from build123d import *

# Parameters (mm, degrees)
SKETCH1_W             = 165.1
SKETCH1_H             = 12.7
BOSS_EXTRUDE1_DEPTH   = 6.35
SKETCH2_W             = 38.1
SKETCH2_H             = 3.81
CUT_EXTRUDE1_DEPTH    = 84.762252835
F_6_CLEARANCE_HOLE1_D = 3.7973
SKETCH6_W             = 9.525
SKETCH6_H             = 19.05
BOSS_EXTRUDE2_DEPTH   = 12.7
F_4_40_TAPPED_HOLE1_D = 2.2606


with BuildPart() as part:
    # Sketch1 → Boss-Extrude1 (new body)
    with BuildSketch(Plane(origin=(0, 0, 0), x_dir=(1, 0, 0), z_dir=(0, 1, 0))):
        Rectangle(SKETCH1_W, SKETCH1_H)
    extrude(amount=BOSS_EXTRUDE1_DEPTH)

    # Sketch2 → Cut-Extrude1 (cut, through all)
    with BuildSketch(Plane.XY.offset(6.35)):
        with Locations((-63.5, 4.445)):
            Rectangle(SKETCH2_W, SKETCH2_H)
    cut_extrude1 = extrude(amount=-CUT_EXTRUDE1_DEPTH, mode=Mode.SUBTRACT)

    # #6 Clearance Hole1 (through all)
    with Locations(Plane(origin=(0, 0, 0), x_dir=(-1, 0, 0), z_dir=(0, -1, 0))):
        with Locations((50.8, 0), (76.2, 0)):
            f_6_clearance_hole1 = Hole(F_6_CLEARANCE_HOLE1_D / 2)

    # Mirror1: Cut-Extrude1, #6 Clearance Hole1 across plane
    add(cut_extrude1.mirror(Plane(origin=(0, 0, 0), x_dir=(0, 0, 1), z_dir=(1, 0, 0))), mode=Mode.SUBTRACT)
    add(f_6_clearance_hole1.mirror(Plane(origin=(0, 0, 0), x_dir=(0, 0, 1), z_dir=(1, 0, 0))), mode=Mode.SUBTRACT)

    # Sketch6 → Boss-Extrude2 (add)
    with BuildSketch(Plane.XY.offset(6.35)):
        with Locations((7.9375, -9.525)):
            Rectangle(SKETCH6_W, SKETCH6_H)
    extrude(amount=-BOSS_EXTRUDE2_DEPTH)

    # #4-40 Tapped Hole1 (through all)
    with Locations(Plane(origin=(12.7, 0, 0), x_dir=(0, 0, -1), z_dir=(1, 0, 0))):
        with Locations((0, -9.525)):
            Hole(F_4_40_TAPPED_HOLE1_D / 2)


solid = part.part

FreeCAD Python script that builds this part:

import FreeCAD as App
import Part
import Sketcher
from FreeCAD import Vector
Q = App.Units.Quantity

doc = App.newDocument("Part")
body = doc.addObject("PartDesign::Body", "Body")

# Sketch on XZ plane
sketch1 = body.newObject("Sketcher::SketchObject", "Sketch")
sketch1.AttachmentSupport = (doc.getObject("XZ_Plane"), [""])
sketch1.MapMode = "FlatFace"
sketch1.addGeometry(Part.LineSegment(Vector(-82.55, -6.35, 0), Vector(-82.55, 6.35, 0)), False)
sketch1.addGeometry(Part.LineSegment(Vector(-82.55, 6.35, 0), Vector(82.55, 6.35, 0)), False)
sketch1.addGeometry(Part.LineSegment(Vector(82.55, 6.35, 0), Vector(82.55, -6.35, 0)), False)
sketch1.addGeometry(Part.LineSegment(Vector(82.55, -6.35, 0), Vector(-82.55, -6.35, 0)), False)
sketch1.addConstraint(Sketcher.Constraint("Coincident", 0, 2, 1, 1))
sketch1.addConstraint(Sketcher.Constraint("Coincident", 1, 2, 2, 1))
sketch1.addConstraint(Sketcher.Constraint("Coincident", 2, 2, 3, 1))
sketch1.addConstraint(Sketcher.Constraint("Coincident", 3, 2, 0, 1))
sketch1.addConstraint(Sketcher.Constraint("Vertical", 0))
sketch1.addConstraint(Sketcher.Constraint("Horizontal", 1))
sketch1.addConstraint(Sketcher.Constraint("Vertical", 2))
sketch1.addConstraint(Sketcher.Constraint("Horizontal", 3))
sketch1.addConstraint(Sketcher.Constraint("Symmetric", 0, 2, 2, 2, -1, 1))
sketch1.addConstraint(Sketcher.Constraint("DistanceX", 1, 1, 1, 2, Q("6.5 in")))
sketch1.addConstraint(Sketcher.Constraint("DistanceY", 0, 1, 0, 2, Q("0.5 in")))
pad1 = body.newObject("PartDesign::Pad", "Pad")
pad1.Profile = sketch1
pad1.Length = Q("0.25 in")
pad1.Reversed = True

# Sketch on XY plane
sketch2 = body.newObject("Sketcher::SketchObject", "Sketch001")
sketch2.AttachmentSupport = (doc.getObject("XY_Plane"), [""])
sketch2.MapMode = "FlatFace"
sketch2.AttachmentOffset = App.Placement(Vector(0, 0, 0.25 * 25.4), App.Rotation())
sketch2.addGeometry(Part.LineSegment(Vector(-82.55, 6.35, 0), Vector(-82.55, 2.54, 0)), False)
sketch2.addGeometry(Part.LineSegment(Vector(-82.55, 2.54, 0), Vector(-44.45, 2.54, 0)), False)
sketch2.addGeometry(Part.LineSegment(Vector(-44.45, 2.54, 0), Vector(-44.45, 6.35, 0)), False)
sketch2.addGeometry(Part.LineSegment(Vector(-44.45, 6.35, 0), Vector(-82.55, 6.35, 0)), False)
sketch2.addConstraint(Sketcher.Constraint("Coincident", 0, 2, 1, 1))
sketch2.addConstraint(Sketcher.Constraint("Coincident", 1, 2, 2, 1))
sketch2.addConstraint(Sketcher.Constraint("Coincident", 2, 2, 3, 1))
sketch2.addConstraint(Sketcher.Constraint("Coincident", 3, 2, 0, 1))
sketch2.addConstraint(Sketcher.Constraint("Vertical", 0))
sketch2.addConstraint(Sketcher.Constraint("Horizontal", 1))
sketch2.addConstraint(Sketcher.Constraint("Vertical", 2))
sketch2.addConstraint(Sketcher.Constraint("Horizontal", 3))
sketch2.addConstraint(Sketcher.Constraint("DistanceX", 1, 1, 1, 2, Q("1.5 in")))
sketch2.addConstraint(Sketcher.Constraint("DistanceY", 0, 2, 0, 1, Q("0.15 in")))
sketch2.addConstraint(Sketcher.Constraint("DistanceY", -1, 1, 0, 2, Q("0.1 in")))
sketch2.addConstraint(Sketcher.Constraint("DistanceX", 0, 2, -1, 1, Q("3.25 in")))
pocket1 = body.newObject("PartDesign::Pocket", "Pocket")
pocket1.Profile = sketch2
pocket1.Type = "ThroughAll"

# Sketch on XZ plane
sketch3 = body.newObject("Sketcher::SketchObject", "Sketch002")
sketch3.AttachmentSupport = (doc.getObject("XZ_Plane"), [""])
sketch3.MapMode = "FlatFace"
sketch3.addGeometry(Part.Circle(Vector(-50.8, 0, 0), Vector(0, 0, 1), 1.89865), False)
sketch3.addGeometry(Part.Circle(Vector(-76.2, 0, 0), Vector(0, 0, 1), 1.89865), False)
sketch3.addConstraint(Sketcher.Constraint("Equal", 0, 1))
sketch3.addConstraint(Sketcher.Constraint("PointOnObject", 0, 3, -1))
sketch3.addConstraint(Sketcher.Constraint("PointOnObject", 1, 3, -1))
sketch3.addConstraint(Sketcher.Constraint("DistanceX", 0, 3, -1, 1, Q("2 in")))
sketch3.addConstraint(Sketcher.Constraint("DistanceX", 1, 3, -1, 1, Q("3 in")))
sketch3.addConstraint(Sketcher.Constraint("Diameter", 0, Q("0.1495 in")))
doc.recompute()
hole = body.newObject("PartDesign::Hole", "Hole")
hole.Profile = sketch3
hole.ThreadType = "None"
hole.Diameter = Q("0.1495 in")
hole.DepthType = "ThroughAll"
doc.recompute()

mirrored = body.newObject("PartDesign::Mirrored", "Mirrored")
mirrored.Originals = [pocket1, hole]
mirrored.MirrorPlane = (doc.getObject("YZ_Plane"), [""])
body.Tip = mirrored

# Sketch on XY plane
sketch4 = body.newObject("Sketcher::SketchObject", "Sketch003")
sketch4.AttachmentSupport = (doc.getObject("XY_Plane"), [""])
sketch4.MapMode = "FlatFace"
sketch4.AttachmentOffset = App.Placement(Vector(0, 0, 0.25 * 25.4), App.Rotation())
sketch4.addGeometry(Part.LineSegment(Vector(3.175, 0, 0), Vector(3.175, -19.05, 0)), False)
sketch4.addGeometry(Part.LineSegment(Vector(3.175, -19.05, 0), Vector(12.7, -19.05, 0)), False)
sketch4.addGeometry(Part.LineSegment(Vector(12.7, -19.05, 0), Vector(12.7, 0, 0)), False)
sketch4.addGeometry(Part.LineSegment(Vector(12.7, 0, 0), Vector(3.175, 0, 0)), False)
sketch4.addConstraint(Sketcher.Constraint("Coincident", 0, 2, 1, 1))
sketch4.addConstraint(Sketcher.Constraint("Coincident", 1, 2, 2, 1))
sketch4.addConstraint(Sketcher.Constraint("Coincident", 2, 2, 3, 1))
sketch4.addConstraint(Sketcher.Constraint("Coincident", 3, 2, 0, 1))
sketch4.addConstraint(Sketcher.Constraint("Vertical", 0))
sketch4.addConstraint(Sketcher.Constraint("Horizontal", 1))
sketch4.addConstraint(Sketcher.Constraint("Vertical", 2))
sketch4.addConstraint(Sketcher.Constraint("Horizontal", 3))
sketch4.addConstraint(Sketcher.Constraint("PointOnObject", 2, 2, -1))
sketch4.addConstraint(Sketcher.Constraint("DistanceY", 0, 2, 0, 1, Q("0.75 in")))
sketch4.addConstraint(Sketcher.Constraint("DistanceX", -1, 1, 1, 2, Q("0.5 in")))
sketch4.addConstraint(Sketcher.Constraint("DistanceX", 1, 1, 1, 2, Q("0.375 in")))
pad2 = body.newObject("PartDesign::Pad", "Pad001")
pad2.Profile = sketch4
pad2.Length = Q("0.5 in")
pad2.Reversed = True

# Sketch on YZ plane
sketch5 = body.newObject("Sketcher::SketchObject", "Sketch004")
sketch5.AttachmentSupport = (doc.getObject("YZ_Plane"), [""])
sketch5.MapMode = "FlatFace"
sketch5.AttachmentOffset = App.Placement(Vector(0, 0, 0.5 * 25.4), App.Rotation())
sketch5.addGeometry(Part.Circle(Vector(-9.525, 0, 0), Vector(0, 0, 1), 1.1303), False)
sketch5.addConstraint(Sketcher.Constraint("PointOnObject", 0, 3, -1))
sketch5.addConstraint(Sketcher.Constraint("Diameter", 0, Q("0.089 in")))
sketch5.addConstraint(Sketcher.Constraint("DistanceX", 0, 3, -1, 1, Q("0.375 in")))
doc.recompute()
hole2 = body.newObject("PartDesign::Hole", "Hole001")
hole2.Profile = sketch5
hole2.ThreadType = "None"
hole2.Diameter = Q("0.089 in")
hole2.DepthType = "ThroughAll"

doc.recompute()
